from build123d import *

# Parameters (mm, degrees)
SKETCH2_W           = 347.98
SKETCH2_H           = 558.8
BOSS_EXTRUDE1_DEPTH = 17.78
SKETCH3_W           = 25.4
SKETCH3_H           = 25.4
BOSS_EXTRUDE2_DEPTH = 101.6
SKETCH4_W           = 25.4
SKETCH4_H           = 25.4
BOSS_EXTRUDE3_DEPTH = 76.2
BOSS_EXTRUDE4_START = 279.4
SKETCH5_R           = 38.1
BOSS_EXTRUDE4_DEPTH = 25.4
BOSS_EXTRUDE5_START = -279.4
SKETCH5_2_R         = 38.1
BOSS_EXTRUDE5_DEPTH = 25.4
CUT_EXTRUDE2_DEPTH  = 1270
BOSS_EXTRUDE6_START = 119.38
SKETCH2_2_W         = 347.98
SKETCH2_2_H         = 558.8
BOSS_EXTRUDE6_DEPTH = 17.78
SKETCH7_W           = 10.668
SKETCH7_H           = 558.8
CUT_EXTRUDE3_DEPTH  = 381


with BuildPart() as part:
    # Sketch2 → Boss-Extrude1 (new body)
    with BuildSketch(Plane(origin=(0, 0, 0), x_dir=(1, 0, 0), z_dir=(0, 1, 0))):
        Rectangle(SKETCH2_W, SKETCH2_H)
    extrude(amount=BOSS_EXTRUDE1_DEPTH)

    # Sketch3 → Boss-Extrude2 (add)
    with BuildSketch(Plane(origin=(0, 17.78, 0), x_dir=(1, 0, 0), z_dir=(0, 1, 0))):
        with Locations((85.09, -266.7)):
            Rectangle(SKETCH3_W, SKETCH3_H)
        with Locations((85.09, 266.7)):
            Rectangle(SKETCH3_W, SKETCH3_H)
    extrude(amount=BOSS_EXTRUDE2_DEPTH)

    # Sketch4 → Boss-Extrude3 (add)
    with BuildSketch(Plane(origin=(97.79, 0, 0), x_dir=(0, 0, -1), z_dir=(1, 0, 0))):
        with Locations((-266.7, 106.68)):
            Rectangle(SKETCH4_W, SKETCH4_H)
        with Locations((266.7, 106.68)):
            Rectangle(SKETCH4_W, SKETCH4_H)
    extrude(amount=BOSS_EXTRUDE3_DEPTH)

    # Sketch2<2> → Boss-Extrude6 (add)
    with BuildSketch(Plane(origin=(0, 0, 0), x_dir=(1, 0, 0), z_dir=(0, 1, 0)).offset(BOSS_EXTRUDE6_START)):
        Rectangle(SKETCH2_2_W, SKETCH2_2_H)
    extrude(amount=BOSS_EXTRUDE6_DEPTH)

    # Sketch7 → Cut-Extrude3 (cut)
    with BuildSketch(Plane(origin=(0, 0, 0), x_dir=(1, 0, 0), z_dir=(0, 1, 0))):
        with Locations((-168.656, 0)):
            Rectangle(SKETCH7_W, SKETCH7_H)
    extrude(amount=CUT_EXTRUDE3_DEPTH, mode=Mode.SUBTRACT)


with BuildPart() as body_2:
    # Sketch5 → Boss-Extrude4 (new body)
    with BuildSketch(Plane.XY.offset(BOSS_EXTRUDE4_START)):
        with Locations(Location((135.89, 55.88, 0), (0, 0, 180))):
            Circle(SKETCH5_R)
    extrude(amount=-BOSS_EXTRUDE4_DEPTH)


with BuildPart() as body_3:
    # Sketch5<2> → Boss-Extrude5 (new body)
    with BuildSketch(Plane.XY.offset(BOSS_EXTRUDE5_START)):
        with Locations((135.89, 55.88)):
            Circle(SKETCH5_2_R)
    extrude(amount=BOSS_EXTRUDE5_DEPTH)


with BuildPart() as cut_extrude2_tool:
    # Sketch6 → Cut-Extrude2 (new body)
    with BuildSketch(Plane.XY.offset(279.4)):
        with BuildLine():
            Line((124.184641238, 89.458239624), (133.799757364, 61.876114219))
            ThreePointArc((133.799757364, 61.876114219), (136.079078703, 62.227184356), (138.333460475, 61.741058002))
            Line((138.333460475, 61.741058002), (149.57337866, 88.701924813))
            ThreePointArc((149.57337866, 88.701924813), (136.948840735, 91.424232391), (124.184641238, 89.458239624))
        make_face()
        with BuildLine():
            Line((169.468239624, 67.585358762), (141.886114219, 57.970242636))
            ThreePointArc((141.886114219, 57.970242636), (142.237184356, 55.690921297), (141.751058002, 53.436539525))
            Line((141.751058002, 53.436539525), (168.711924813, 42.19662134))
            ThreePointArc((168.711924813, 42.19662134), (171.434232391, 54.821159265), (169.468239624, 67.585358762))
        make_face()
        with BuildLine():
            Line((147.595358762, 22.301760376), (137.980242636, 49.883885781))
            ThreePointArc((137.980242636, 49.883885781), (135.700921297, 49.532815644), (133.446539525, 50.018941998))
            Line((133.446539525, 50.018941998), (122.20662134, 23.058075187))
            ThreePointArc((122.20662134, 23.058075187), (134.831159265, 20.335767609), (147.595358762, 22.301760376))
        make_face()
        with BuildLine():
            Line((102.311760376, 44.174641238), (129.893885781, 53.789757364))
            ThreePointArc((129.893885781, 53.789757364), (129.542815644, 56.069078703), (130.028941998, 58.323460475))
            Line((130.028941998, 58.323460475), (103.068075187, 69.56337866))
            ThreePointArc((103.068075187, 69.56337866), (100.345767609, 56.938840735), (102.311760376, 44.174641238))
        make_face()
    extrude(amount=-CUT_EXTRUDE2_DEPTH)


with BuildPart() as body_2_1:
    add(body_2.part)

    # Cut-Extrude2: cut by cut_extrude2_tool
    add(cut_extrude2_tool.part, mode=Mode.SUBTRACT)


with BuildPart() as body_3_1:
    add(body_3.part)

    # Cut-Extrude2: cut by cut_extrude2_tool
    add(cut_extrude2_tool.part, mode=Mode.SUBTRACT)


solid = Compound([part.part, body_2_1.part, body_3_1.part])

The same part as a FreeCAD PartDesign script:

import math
import FreeCAD as App
import Part
import Sketcher
Q = App.Units.Quantity

doc = App.newDocument("Part")
body = doc.addObject("PartDesign::Body", "Body")

# Sketch on XZ plane
sketch1 = doc.addObject("Sketcher::SketchObject", "Sketch")
body.addObject(sketch1)
sketch1.AttachmentSupport = (doc.XZ_Plane, [""])
sketch1.MapMode = "FlatFace"
sketch1.addGeometry([
    Part.LineSegment(App.Vector(-174, -279, 0), App.Vector(-174, 279, 0)),
    Part.LineSegment(App.Vector(-174, 279, 0), App.Vector(174, 279, 0)),
    Part.LineSegment(App.Vector(174, 279, 0), App.Vector(174, -279, 0)),
    Part.LineSegment(App.Vector(174, -279, 0), App.Vector(-174, -279, 0)),
], False)
sketch1.addConstraint([
    Sketcher.Constraint("Coincident", 0, 2, 1, 1),
    Sketcher.Constraint("Coincident", 1, 2, 2, 1),
    Sketcher.Constraint("Coincident", 2, 2, 3, 1),
    Sketcher.Constraint("Coincident", 3, 2, 0, 1),
    Sketcher.Constraint("Vertical", 0),
    Sketcher.Constraint("Horizontal", 1),
    Sketcher.Constraint("Vertical", 2),
    Sketcher.Constraint("Horizontal", 3),
    Sketcher.Constraint("Symmetric", 0, 2, 2, 2, -1, 1),
    Sketcher.Constraint("DistanceY", 0, 1, 0, 2, Q("22 in")),
    Sketcher.Constraint("DistanceX", 1, 1, 1, 2, Q("13.7 in")),
])
pad1 = doc.addObject("PartDesign::Pad", "Pad")
body.addObject(pad1)
pad1.Profile = sketch1
pad1.Length = Q("0.7 in")
pad1.Reversed = True

# Sketch on XZ plane
sketch2 = doc.addObject("Sketcher::SketchObject", "Sketch001")
body.addObject(sketch2)
sketch2.AttachmentSupport = (doc.XZ_Plane, [""])
sketch2.MapMode = "FlatFace"
sketch2.AttachmentOffset = App.Placement(App.Vector(0, 0, -0.7 * 25.4), App.Rotation())
sketch2.addGeometry([
    Part.LineSegment(App.Vector(72, 254, 0), App.Vector(72, 279, 0)),  # 0
    Part.LineSegment(App.Vector(72, 279, 0), App.Vector(98, 279, 0)),  # 1
    Part.LineSegment(App.Vector(98, 279, 0), App.Vector(98, 254, 0)),  # 2
    Part.LineSegment(App.Vector(98, 254, 0), App.Vector(72, 254, 0)),  # 3
    Part.LineSegment(App.Vector(72, -279, 0), App.Vector(72, -254, 0)),  # 4
    Part.LineSegment(App.Vector(72, -254, 0), App.Vector(98, -254, 0)),  # 5
    Part.LineSegment(App.Vector(98, -254, 0), App.Vector(98, -279, 0)),  # 6
    Part.LineSegment(App.Vector(98, -279, 0), App.Vector(72, -279, 0)),  # 7
], False)
sketch2.addConstraint([
    Sketcher.Constraint("Coincident", 0, 2, 1, 1),
    Sketcher.Constraint("Coincident", 1, 2, 2, 1),
    Sketcher.Constraint("Coincident", 2, 2, 3, 1),
    Sketcher.Constraint("Coincident", 3, 2, 0, 1),
    Sketcher.Constraint("Coincident", 4, 2, 5, 1),
    Sketcher.Constraint("Coincident", 5, 2, 6, 1),
    Sketcher.Constraint("Coincident", 6, 2, 7, 1),
    Sketcher.Constraint("Coincident", 7, 2, 4, 1),
    Sketcher.Constraint("Vertical", 0),
    Sketcher.Constraint("Horizontal", 1),
    Sketcher.Constraint("Vertical", 2),
    Sketcher.Constraint("Horizontal", 3),
    Sketcher.Constraint("Vertical", 4),
    Sketcher.Constraint("Horizontal", 5),
    Sketcher.Constraint("Vertical", 6),
    Sketcher.Constraint("Horizontal", 7),
    Sketcher.Constraint("Symmetric", 3, 2, 4, 2, -1),
    Sketcher.Constraint("Symmetric", 1, 2, 6, 2, -1),
    Sketcher.Constraint("Equal", 7, 0),
    Sketcher.Constraint("DistanceX", 1, 1, 1, 2, Q("1 in")),
    Sketcher.Constraint("DistanceY", -1, 1, 0, 2, Q("11 in")),
    Sketcher.Constraint("DistanceX", -1, 1, 0, 2, Q("2.85 in")),
])
pad2 = doc.addObject("PartDesign::Pad", "Pad001")
body.addObject(pad2)
pad2.Profile = sketch2
pad2.Length = Q("4 in")
pad2.Reversed = True

# Sketch on YZ plane
sketch3 = doc.addObject("Sketcher::SketchObject", "Sketch002")
body.addObject(sketch3)
sketch3.AttachmentSupport = (doc.YZ_Plane, [""])
sketch3.MapMode = "FlatFace"
sketch3.AttachmentOffset = App.Placement(App.Vector(0, 0, 3.85 * 25.4), App.Rotation())
sketch3.addGeometry([
    Part.LineSegment(App.Vector(119, 279, 0), App.Vector(94, 279, 0)),  # 0
    Part.LineSegment(App.Vector(94, 279, 0), App.Vector(94, 254, 0)),  # 1
    Part.LineSegment(App.Vector(94, 254, 0), App.Vector(119, 254, 0)),  # 2
    Part.LineSegment(App.Vector(119, 254, 0), App.Vector(119, 279, 0)),  # 3
    Part.LineSegment(App.Vector(119, -254, 0), App.Vector(94, -254, 0)),  # 4
    Part.LineSegment(App.Vector(94, -254, 0), App.Vector(94, -279, 0)),  # 5
    Part.LineSegment(App.Vector(94, -279, 0), App.Vector(119, -279, 0)),  # 6
    Part.LineSegment(App.Vector(119, -279, 0), App.Vector(119, -254, 0)),  # 7
], False)
sketch3.addConstraint([
    Sketcher.Constraint("Coincident", 0, 2, 1, 1),
    Sketcher.Constraint("Coincident", 1, 2, 2, 1),
    Sketcher.Constraint("Coincident", 2, 2, 3, 1),
    Sketcher.Constraint("Coincident", 3, 2, 0, 1),
    Sketcher.Constraint("Coincident", 4, 2, 5, 1),
    Sketcher.Constraint("Coincident", 5, 2, 6, 1),
    Sketcher.Constraint("Coincident", 6, 2, 7, 1),
    Sketcher.Constraint("Coincident", 7, 2, 4, 1),
    Sketcher.Constraint("Horizontal", 0),
    Sketcher.Constraint("Vertical", 1),
    Sketcher.Constraint("Horizontal", 2),
    Sketcher.Constraint("Vertical", 3),
    Sketcher.Constraint("Horizontal", 4),
    Sketcher.Constraint("Vertical", 5),
    Sketcher.Constraint("Horizontal", 6),
    Sketcher.Constraint("Vertical", 7),
    Sketcher.Constraint("Symmetric", 1, 2, 4, 2, -1),
    Sketcher.Constraint("Symmetric", 3, 2, 6, 2, -1),
    Sketcher.Constraint("Equal", 6, 1),
    Sketcher.Constraint("DistanceX", 0, 2, 0, 1, Q("1 in")),
    Sketcher.Constraint("DistanceY", -1, 1, 0, 2, Q("11 in")),
    Sketcher.Constraint("DistanceX", -1, 1, 0, 2, Q("3.7 in")),
])
pad3 = doc.addObject("PartDesign::Pad", "Pad002")
body.addObject(pad3)
pad3.Profile = sketch3
pad3.Length = Q("3 in")

# Sketch on XZ plane
sketch4 = doc.addObject("Sketcher::SketchObject", "Sketch003")
body.addObject(sketch4)
sketch4.AttachmentSupport = (doc.XZ_Plane, [""])
sketch4.MapMode = "FlatFace"
sketch4.AttachmentOffset = App.Placement(App.Vector(0, 0, -4.7 * 25.4), App.Rotation())
sketch4.addGeometry([
    Part.LineSegment(App.Vector(-174, -279, 0), App.Vector(-174, 279, 0)),
    Part.LineSegment(App.Vector(-174, 279, 0), App.Vector(174, 279, 0)),
    Part.LineSegment(App.Vector(174, 279, 0), App.Vector(174, -279, 0)),
    Part.LineSegment(App.Vector(174, -279, 0), App.Vector(-174, -279, 0)),
], False)
sketch4.addConstraint([
    Sketcher.Constraint("Coincident", 0, 2, 1, 1),
    Sketcher.Constraint("Coincident", 1, 2, 2, 1),
    Sketcher.Constraint("Coincident", 2, 2, 3, 1),
    Sketcher.Constraint("Coincident", 3, 2, 0, 1),
    Sketcher.Constraint("Vertical", 0),
    Sketcher.Constraint("Horizontal", 1),
    Sketcher.Constraint("Vertical", 2),
    Sketcher.Constraint("Horizontal", 3),
    Sketcher.Constraint("Symmetric", 0, 2, 2, 2, -1, 1),
    Sketcher.Constraint("DistanceY", 0, 1, 0, 2, Q("22 in")),
    Sketcher.Constraint("DistanceX", 1, 1, 1, 2, Q("13.7 in")),
])
pad4 = doc.addObject("PartDesign::Pad", "Pad003")
body.addObject(pad4)
pad4.Profile = sketch4
pad4.Length = Q("0.7 in")
pad4.Reversed = True

# Sketch on XZ plane
sketch5 = doc.addObject("Sketcher::SketchObject", "Sketch004")
body.addObject(sketch5)
sketch5.AttachmentSupport = (doc.XZ_Plane, [""])
sketch5.MapMode = "FlatFace"
sketch5.addGeometry([
    Part.LineSegment(App.Vector(-174, -279, 0), App.Vector(-174, 279, 0)),
    Part.LineSegment(App.Vector(-174, 279, 0), App.Vector(-163, 279, 0)),
    Part.LineSegment(App.Vector(-163, 279, 0), App.Vector(-163, -279, 0)),
    Part.LineSegment(App.Vector(-163, -279, 0), App.Vector(-174, -279, 0)),
], False)
sketch5.addConstraint([
    Sketcher.Constraint("Coincident", 0, 2, 1, 1),
    Sketcher.Constraint("Coincident", 1, 2, 2, 1),
    Sketcher.Constraint("Coincident", 2, 2, 3, 1),
    Sketcher.Constraint("Coincident", 3, 2, 0, 1),
    Sketcher.Constraint("Vertical", 0),
    Sketcher.Constraint("Horizontal", 1),
    Sketcher.Constraint("Vertical", 2),
    Sketcher.Constraint("Horizontal", 3),
    Sketcher.Constraint("DistanceY", 0, 1, 0, 2, Q("22 in")),
    Sketcher.Constraint("DistanceY", -1, 1, 0, 2, Q("11 in")),
    Sketcher.Constraint("DistanceX", 1, 1, 1, 2, Q("0.42 in")),
    Sketcher.Constraint("DistanceX", 0, 2, -1, 1, Q("6.85 in")),
])
pocket1 = doc.addObject("PartDesign::Pocket", "Pocket")
body.addObject(pocket1)
pocket1.Profile = sketch5
pocket1.Length = Q("15 in")
body2 = doc.addObject("PartDesign::Body", "Body001")

# Sketch on XY plane
sketch6 = doc.addObject("Sketcher::SketchObject", "Sketch005")
body2.addObject(sketch6)
sketch6.AttachmentSupport = (doc.getObject("XY_Plane001"), [""])
sketch6.MapMode = "FlatFace"
sketch6.AttachmentOffset = App.Placement(App.Vector(0, 0, 11 * 25.4), App.Rotation())
sketch6.addGeometry(Part.Circle(App.Vector(136, 56, 0), App.Vector(0, 0, 1), 38), False)
sketch6.addConstraint([
    Sketcher.Constraint("Diameter", 0, Q("3 in")),
    Sketcher.Constraint("DistanceY", -1, 1, 0, 3, Q("2.2 in")),
    Sketcher.Constraint("DistanceX", -1, 1, 0, 3, Q("5.35 in")),
])
pad5 = doc.addObject("PartDesign::Pad", "Pad004")
body2.addObject(pad5)
pad5.Profile = sketch6
pad5.Length = Q("1 in")
pad5.Reversed = True
body3 = doc.addObject("PartDesign::Body", "Body002")

# Sketch on XY plane
sketch7 = doc.addObject("Sketcher::SketchObject", "Sketch006")
body3.addObject(sketch7)
sketch7.AttachmentSupport = (doc.getObject("XY_Plane002"), [""])
sketch7.MapMode = "FlatFace"
sketch7.AttachmentOffset = App.Placement(App.Vector(0, 0, -11 * 25.4), App.Rotation())
sketch7.addGeometry(Part.Circle(App.Vector(136, 56, 0), App.Vector(0, 0, 1), 38), False)
sketch7.addConstraint([
    Sketcher.Constraint("Diameter", 0, Q("3 in")),
    Sketcher.Constraint("DistanceY", -1, 1, 0, 3, Q("2.2 in")),
    Sketcher.Constraint("DistanceX", -1, 1, 0, 3, Q("5.35 in")),
])
pad6 = doc.addObject("PartDesign::Pad", "Pad005")
body3.addObject(pad6)
pad6.Profile = sketch7
pad6.Length = Q("1 in")
body4 = doc.addObject("PartDesign::Body", "Body003")
body4.AllowCompound = True

# Sketch on XY plane
sketch8 = doc.addObject("Sketcher::SketchObject", "Sketch007")
body4.addObject(sketch8)
sketch8.AttachmentSupport = (doc.getObject("XY_Plane003"), [""])
sketch8.MapMode = "FlatFace"
sketch8.AttachmentOffset = App.Placement(App.Vector(0, 0, 11 * 25.4), App.Rotation())
sketch8.addGeometry([
    Part.LineSegment(App.Vector(124.2, 89.5, 0), App.Vector(133.8, 61.9, 0)),  # 0
    Part.ArcOfCircle(Part.Circle(App.Vector(135.9, 55.9, 0), App.Vector(0, 0, 1), 6.3), math.radians(67), math.radians(109)),  # 1
    Part.LineSegment(App.Vector(138.3, 61.7, 0), App.Vector(149.6, 88.7, 0)),  # 2
    Part.ArcOfCircle(Part.Circle(App.Vector(135.9, 55.9, 0), App.Vector(0, 0, 1), 35.6), math.radians(67), math.radians(109)),  # 3
    Part.LineSegment(App.Vector(169.5, 67.6, 0), App.Vector(141.9, 58, 0)),  # 4
    Part.ArcOfCircle(Part.Circle(App.Vector(135.9, 55.9, 0), App.Vector(0, 0, 1), 6.3), math.radians(-23), math.radians(19)),  # 5
    Part.LineSegment(App.Vector(141.8, 53.4, 0), App.Vector(168.7, 42.2, 0)),  # 6
    Part.ArcOfCircle(Part.Circle(App.Vector(135.9, 55.9, 0), App.Vector(0, 0, 1), 35.6), math.radians(-23), math.radians(19)),  # 7
    Part.LineSegment(App.Vector(147.6, 22.3, 0), App.Vector(138, 49.9, 0)),  # 8
    Part.ArcOfCircle(Part.Circle(App.Vector(135.9, 55.9, 0), App.Vector(0, 0, 1), 6.3), math.radians(-113), math.radians(-71)),  # 9
    Part.LineSegment(App.Vector(133.4, 50, 0), App.Vector(122.2, 23.1, 0)),  # 10
    Part.ArcOfCircle(Part.Circle(App.Vector(135.9, 55.9, 0), App.Vector(0, 0, 1), 35.6), math.radians(-113), math.radians(-71)),  # 11
    Part.LineSegment(App.Vector(102.3, 44.2, 0), App.Vector(129.9, 53.8, 0)),  # 12
    Part.ArcOfCircle(Part.Circle(App.Vector(135.9, 55.9, 0), App.Vector(0, 0, 1), 6.3), math.radians(157), math.radians(199)),  # 13
    Part.LineSegment(App.Vector(130, 58.3, 0), App.Vector(103.1, 69.6, 0)),  # 14
    Part.ArcOfCircle(Part.Circle(App.Vector(135.9, 55.9, 0), App.Vector(0, 0, 1), 35.6), math.radians(157), math.radians(199)),  # 15
], False)
sketch8.addConstraint([
    Sketcher.Constraint("Coincident", 0, 2, 1, 2),
    Sketcher.Constraint("Coincident", 1, 1, 2, 1),
    Sketcher.Constraint("Coincident", 2, 2, 3, 1),
    Sketcher.Constraint("Coincident", 3, 2, 0, 1),
    Sketcher.Constraint("Coincident", 4, 2, 5, 2),
    Sketcher.Constraint("Coincident", 5, 1, 6, 1),
    Sketcher.Constraint("Coincident", 6, 2, 7, 1),
    Sketcher.Constraint("Coincident", 7, 2, 4, 1),
    Sketcher.Constraint("Coincident", 8, 2, 9, 2),
    Sketcher.Constraint("Coincident", 9, 1, 10, 1),
    Sketcher.Constraint("Coincident", 10, 2, 11, 1),
    Sketcher.Constraint("Coincident", 11, 2, 8, 1),
    Sketcher.Constraint("Coincident", 12, 2, 13, 2),
    Sketcher.Constraint("Coincident", 13, 1, 14, 1),
    Sketcher.Constraint("Coincident", 14, 2, 15, 1),
    Sketcher.Constraint("Coincident", 15, 2, 12, 1),
    Sketcher.Constraint("Coincident", 3, 3, 1, 3),
    Sketcher.Constraint("Coincident", 5, 3, 1, 3),
    Sketcher.Constraint("Coincident", 7, 3, 1, 3),
    Sketcher.Constraint("Coincident", 9, 3, 1, 3),
    Sketcher.Constraint("Coincident", 11, 3, 1, 3),
    Sketcher.Constraint("Coincident", 13, 3, 1, 3),
    Sketcher.Constraint("Coincident", 15, 3, 1, 3),
    Sketcher.Constraint("Equal", 1, 5),
    Sketcher.Constraint("Equal", 3, 7),
    Sketcher.Constraint("Equal", 5, 9),
    Sketcher.Constraint("Equal", 7, 11),
    Sketcher.Constraint("Equal", 9, 13),
    Sketcher.Constraint("Equal", 11, 15),
    Sketcher.Constraint("Perpendicular", 0, 4),
    Sketcher.Constraint("Perpendicular", 2, 6),
    Sketcher.Constraint("Perpendicular", 4, 8),
    Sketcher.Constraint("Perpendicular", 6, 10),
    Sketcher.Constraint("Perpendicular", 8, 12),
    Sketcher.Constraint("Perpendicular", 10, 14),
    Sketcher.Constraint("Radius", 3, Q("1.4 in")),
    Sketcher.Constraint("Radius", 1, Q("0.25 in")),
    Sketcher.Constraint("DistanceY", -1, 1, 1, 3, Q("2.2 in")),
    Sketcher.Constraint("DistanceX", -1, 1, 1, 3, Q("5.35 in")),
    Sketcher.Constraint("DistanceY", 1, 1, 7, 2, Q("5.844301 mm")),
    Sketcher.Constraint("DistanceX", 5, 1, 11, 2, Q("5.844301 mm")),
    Sketcher.Constraint("DistanceY", 15, 2, 9, 1, Q("5.844301 mm")),
    Sketcher.Constraint("DistanceX", -1, 1, 1, 1, Q("138.33346 mm")),
    Sketcher.Constraint("DistanceX", -1, 1, 2, 2, Q("149.573379 mm")),
    Sketcher.Constraint("DistanceX", -1, 1, 3, 2, Q("124.184641 mm")),
    Sketcher.Constraint("DistanceX", -1, 1, 5, 1, Q("141.751058 mm")),
    Sketcher.Constraint("DistanceX", -1, 1, 9, 1, Q("133.44654 mm")),
    Sketcher.Constraint("DistanceX", -1, 1, 13, 1, Q("130.028942 mm")),
    Sketcher.Constraint("DistanceX", 0, 2, 2, 2, Q("15.773621 mm")),
])
pad7 = doc.addObject("PartDesign::Pad", "Pad006")
body4.addObject(pad7)
pad7.Profile = sketch8
pad7.Length = Q("50 in")
pad7.Reversed = True
doc.recompute()

body5 = doc.addObject("PartDesign::Body", "Body004")
body5.BaseFeature = body4
boolean = doc.addObject("PartDesign::Boolean", "Boolean")
body2.addObject(boolean)
boolean.Type = "Cut"
boolean.addObjects([body5])
doc.recompute()

boolean2 = doc.addObject("PartDesign::Boolean", "Boolean001")
body3.addObject(boolean2)
boolean2.Type = "Cut"
boolean2.addObjects([body4])

doc.recompute()
